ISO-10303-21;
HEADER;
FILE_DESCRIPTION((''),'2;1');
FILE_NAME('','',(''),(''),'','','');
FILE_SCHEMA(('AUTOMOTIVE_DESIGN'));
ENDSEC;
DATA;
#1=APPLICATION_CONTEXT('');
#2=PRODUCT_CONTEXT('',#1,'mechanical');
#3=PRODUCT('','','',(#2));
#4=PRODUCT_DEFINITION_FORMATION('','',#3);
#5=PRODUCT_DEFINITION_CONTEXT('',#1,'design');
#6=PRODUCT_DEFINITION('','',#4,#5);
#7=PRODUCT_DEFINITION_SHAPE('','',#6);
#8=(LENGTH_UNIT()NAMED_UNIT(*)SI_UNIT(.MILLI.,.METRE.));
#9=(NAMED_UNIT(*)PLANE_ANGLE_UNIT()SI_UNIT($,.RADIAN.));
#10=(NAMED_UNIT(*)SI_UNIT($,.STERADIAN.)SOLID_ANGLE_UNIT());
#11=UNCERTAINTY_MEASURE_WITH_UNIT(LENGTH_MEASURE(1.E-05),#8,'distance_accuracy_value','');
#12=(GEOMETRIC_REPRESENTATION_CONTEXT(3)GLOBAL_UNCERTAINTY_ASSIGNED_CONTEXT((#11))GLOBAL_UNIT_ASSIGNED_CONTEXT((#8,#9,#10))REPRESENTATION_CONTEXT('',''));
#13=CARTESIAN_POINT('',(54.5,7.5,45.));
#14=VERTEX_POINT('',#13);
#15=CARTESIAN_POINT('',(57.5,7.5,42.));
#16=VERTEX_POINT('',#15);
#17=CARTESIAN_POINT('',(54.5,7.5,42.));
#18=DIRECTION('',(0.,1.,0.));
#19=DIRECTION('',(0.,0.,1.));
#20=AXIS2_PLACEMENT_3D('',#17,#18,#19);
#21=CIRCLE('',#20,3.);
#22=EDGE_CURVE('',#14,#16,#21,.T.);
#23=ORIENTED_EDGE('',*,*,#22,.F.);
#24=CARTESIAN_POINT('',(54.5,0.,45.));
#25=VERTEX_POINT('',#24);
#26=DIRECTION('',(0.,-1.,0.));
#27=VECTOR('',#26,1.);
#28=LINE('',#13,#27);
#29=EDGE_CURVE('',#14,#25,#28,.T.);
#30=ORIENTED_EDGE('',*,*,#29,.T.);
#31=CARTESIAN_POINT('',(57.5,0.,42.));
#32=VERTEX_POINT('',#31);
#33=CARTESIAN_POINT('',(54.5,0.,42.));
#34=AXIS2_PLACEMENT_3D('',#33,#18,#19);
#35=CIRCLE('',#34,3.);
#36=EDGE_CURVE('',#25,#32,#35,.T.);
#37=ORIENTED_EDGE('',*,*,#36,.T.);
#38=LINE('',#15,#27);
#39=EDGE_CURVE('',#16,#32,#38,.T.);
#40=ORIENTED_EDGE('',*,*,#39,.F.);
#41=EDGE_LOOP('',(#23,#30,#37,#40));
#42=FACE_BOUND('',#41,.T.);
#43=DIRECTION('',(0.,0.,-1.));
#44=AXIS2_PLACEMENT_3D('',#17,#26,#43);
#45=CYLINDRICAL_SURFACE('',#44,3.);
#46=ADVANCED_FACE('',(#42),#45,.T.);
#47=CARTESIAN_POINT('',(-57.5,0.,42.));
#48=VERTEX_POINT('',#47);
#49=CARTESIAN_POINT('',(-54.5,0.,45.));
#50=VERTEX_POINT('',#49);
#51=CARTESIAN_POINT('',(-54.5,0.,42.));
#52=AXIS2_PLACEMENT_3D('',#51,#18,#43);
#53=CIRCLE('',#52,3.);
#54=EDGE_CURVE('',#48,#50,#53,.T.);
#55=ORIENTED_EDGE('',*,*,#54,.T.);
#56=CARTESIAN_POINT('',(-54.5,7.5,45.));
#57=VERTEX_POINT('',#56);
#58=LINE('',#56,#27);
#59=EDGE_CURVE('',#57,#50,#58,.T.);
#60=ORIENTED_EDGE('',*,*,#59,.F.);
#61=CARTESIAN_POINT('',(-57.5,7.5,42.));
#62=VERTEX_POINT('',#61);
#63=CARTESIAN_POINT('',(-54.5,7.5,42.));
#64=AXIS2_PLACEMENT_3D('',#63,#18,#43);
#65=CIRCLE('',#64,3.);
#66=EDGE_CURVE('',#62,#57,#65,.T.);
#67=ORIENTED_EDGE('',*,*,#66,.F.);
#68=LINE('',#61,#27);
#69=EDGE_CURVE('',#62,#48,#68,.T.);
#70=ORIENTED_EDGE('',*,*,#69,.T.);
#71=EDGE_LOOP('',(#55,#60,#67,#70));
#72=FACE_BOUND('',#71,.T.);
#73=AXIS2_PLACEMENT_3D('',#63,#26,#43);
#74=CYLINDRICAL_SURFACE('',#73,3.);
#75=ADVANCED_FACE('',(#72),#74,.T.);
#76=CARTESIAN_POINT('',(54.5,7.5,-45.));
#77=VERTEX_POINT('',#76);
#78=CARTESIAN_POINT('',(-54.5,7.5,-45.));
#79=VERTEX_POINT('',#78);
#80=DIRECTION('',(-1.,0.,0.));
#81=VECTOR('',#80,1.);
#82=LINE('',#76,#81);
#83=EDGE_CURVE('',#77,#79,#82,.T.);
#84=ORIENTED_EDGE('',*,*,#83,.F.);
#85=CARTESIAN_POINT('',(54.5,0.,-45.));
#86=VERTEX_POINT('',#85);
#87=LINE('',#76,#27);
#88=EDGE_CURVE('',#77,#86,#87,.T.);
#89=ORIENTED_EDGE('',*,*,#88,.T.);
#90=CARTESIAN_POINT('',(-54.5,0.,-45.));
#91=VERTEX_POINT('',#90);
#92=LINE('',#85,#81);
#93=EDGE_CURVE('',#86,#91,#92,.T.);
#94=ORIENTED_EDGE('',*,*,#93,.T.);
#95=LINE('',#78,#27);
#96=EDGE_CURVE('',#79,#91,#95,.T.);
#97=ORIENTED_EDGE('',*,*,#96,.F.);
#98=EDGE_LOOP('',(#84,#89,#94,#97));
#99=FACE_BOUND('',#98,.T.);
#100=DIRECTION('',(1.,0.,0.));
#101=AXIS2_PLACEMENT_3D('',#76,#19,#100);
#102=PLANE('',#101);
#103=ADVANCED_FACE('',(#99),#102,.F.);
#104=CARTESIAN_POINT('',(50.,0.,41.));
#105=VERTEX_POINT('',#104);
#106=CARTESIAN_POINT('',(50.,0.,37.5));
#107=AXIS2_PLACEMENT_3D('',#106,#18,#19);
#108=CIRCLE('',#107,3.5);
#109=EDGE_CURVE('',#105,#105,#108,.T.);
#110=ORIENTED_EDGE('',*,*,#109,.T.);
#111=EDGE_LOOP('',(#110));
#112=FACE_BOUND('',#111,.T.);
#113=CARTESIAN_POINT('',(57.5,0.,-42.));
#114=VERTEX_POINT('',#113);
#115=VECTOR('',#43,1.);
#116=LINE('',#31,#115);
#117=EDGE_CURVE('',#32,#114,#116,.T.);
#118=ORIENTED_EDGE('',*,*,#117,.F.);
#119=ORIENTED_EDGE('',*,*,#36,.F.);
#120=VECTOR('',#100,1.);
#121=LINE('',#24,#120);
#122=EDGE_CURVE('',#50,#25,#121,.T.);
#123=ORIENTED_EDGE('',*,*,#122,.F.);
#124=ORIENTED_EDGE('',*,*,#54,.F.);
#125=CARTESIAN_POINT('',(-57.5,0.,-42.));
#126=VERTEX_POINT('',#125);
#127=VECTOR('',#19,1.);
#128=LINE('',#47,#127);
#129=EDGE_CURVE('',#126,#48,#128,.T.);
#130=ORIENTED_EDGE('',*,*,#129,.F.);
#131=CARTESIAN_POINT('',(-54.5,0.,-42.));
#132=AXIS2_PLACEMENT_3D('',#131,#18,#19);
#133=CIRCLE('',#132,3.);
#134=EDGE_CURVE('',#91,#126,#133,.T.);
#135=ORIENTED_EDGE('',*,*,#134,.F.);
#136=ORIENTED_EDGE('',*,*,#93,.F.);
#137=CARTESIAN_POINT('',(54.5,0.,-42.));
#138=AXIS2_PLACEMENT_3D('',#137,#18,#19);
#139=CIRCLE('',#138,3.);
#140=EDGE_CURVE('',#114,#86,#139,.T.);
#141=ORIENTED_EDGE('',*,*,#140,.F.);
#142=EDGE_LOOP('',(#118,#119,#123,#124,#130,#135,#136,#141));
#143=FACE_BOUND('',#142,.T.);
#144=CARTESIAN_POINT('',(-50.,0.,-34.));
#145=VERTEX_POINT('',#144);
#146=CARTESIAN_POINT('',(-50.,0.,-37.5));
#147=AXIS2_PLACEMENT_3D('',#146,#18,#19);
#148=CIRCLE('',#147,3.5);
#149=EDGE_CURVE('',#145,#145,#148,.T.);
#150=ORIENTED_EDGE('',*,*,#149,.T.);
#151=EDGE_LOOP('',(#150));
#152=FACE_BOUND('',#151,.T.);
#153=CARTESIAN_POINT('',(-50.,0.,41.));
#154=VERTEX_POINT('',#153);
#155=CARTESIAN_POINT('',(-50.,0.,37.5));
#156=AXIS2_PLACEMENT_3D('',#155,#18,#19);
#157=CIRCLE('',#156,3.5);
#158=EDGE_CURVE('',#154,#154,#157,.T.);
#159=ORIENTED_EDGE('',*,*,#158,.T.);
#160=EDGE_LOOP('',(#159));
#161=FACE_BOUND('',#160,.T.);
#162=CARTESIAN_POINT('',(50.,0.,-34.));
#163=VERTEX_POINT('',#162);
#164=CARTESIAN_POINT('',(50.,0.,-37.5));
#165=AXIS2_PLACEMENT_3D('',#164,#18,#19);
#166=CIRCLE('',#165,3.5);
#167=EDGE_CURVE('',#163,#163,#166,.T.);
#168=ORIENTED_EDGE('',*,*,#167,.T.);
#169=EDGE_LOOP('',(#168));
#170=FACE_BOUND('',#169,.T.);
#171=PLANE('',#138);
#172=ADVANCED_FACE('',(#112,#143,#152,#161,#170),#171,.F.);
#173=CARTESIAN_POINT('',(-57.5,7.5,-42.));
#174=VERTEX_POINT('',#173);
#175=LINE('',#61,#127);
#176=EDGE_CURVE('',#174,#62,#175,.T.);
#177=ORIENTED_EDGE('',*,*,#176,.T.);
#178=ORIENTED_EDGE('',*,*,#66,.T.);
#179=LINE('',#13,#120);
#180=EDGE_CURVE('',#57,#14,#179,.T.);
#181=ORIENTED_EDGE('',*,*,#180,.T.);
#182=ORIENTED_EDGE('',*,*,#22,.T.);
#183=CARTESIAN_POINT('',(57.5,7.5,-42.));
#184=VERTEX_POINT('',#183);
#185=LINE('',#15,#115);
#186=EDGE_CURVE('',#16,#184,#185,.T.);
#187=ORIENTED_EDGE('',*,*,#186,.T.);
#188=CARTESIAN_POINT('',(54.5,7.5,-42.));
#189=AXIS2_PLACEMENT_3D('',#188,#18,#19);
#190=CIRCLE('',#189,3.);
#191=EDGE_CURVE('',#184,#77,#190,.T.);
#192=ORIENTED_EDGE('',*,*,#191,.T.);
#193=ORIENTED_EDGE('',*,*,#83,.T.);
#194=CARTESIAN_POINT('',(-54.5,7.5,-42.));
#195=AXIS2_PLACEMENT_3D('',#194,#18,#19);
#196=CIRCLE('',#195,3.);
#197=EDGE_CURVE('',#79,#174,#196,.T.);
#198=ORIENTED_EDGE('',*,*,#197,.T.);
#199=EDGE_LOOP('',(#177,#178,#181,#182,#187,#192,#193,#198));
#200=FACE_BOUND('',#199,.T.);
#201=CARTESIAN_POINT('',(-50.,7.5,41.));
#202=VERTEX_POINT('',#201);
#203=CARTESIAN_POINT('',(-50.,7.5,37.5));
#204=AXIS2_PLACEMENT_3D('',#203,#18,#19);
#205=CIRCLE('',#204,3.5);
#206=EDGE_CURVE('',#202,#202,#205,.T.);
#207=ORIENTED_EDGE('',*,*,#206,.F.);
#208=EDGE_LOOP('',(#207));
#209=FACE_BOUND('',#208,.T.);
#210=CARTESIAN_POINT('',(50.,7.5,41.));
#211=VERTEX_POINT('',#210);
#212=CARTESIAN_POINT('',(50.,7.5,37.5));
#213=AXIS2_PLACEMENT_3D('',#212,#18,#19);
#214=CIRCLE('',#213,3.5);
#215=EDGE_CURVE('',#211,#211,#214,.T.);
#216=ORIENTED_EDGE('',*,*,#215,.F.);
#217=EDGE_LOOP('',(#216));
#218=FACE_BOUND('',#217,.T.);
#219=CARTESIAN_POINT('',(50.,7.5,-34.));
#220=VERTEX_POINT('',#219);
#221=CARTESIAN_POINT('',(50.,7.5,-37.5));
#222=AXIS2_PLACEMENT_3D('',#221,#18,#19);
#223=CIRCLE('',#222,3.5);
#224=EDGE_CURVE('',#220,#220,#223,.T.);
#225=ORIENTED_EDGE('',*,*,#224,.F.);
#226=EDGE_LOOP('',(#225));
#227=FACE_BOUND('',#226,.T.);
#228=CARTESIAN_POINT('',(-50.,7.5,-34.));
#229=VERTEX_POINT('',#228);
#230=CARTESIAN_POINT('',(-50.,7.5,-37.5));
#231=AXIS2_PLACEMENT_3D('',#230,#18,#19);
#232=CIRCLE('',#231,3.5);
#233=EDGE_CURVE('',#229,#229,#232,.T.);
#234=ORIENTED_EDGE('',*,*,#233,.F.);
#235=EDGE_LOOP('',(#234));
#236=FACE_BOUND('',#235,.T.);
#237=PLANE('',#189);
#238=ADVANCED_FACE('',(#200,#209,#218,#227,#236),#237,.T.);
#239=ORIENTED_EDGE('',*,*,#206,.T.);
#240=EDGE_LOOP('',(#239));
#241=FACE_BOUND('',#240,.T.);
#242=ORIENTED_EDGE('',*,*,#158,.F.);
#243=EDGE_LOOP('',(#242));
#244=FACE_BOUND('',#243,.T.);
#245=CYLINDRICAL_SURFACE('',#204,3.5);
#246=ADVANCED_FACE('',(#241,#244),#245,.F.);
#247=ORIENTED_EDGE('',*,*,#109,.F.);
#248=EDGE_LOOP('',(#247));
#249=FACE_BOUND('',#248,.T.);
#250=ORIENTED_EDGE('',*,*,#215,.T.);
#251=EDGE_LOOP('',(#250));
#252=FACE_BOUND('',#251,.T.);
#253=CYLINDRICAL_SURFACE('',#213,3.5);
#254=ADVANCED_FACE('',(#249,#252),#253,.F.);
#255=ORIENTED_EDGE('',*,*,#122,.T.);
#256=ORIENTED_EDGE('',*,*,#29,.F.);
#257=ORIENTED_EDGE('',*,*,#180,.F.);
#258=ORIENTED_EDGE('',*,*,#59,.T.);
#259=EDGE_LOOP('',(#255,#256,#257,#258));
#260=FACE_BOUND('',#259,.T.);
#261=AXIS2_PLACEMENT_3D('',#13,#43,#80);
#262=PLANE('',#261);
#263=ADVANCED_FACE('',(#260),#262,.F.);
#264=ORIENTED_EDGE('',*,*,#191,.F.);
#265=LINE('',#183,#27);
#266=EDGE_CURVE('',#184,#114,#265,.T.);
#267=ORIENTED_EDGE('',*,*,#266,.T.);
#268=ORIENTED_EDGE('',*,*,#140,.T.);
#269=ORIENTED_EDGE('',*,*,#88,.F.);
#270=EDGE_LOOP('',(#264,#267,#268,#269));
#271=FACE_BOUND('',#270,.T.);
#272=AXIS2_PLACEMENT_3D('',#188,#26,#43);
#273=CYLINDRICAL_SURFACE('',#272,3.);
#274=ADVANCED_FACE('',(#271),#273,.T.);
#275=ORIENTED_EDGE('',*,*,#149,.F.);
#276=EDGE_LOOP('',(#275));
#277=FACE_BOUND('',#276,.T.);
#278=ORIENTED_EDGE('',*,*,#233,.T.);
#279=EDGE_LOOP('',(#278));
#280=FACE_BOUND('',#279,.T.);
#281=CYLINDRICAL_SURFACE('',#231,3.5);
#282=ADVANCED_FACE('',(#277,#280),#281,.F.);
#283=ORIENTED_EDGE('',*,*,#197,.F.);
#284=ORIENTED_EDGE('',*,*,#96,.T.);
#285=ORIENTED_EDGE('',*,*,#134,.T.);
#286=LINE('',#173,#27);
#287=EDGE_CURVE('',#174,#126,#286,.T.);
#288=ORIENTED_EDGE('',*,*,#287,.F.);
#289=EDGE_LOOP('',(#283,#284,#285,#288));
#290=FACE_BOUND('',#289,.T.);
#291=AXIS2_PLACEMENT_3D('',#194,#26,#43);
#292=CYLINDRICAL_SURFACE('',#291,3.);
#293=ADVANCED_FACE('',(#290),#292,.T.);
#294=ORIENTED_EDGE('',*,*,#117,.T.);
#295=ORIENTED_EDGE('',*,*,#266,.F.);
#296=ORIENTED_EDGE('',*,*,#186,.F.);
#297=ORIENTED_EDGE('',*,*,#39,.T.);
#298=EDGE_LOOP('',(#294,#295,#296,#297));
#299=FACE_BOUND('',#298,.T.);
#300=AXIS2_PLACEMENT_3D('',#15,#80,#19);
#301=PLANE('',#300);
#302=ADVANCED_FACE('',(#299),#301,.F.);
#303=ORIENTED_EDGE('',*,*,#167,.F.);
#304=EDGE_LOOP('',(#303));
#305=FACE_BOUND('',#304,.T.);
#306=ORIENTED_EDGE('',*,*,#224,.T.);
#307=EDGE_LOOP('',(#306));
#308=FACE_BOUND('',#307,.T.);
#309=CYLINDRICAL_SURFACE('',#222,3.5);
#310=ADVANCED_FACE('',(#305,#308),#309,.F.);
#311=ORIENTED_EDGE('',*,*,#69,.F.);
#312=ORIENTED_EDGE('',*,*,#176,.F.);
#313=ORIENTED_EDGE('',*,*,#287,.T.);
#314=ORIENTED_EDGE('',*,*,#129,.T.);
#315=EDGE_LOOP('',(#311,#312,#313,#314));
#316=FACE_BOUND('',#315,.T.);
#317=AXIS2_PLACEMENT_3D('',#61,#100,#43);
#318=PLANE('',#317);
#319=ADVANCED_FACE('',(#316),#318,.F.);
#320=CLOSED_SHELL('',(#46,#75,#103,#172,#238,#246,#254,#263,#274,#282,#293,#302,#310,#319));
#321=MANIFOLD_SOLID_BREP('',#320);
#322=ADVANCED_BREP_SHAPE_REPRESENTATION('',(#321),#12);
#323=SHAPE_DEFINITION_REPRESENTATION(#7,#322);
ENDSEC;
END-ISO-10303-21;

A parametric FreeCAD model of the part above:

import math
import FreeCAD as App
import Part
import Sketcher

V = App.Vector

doc = App.newDocument("Part")
params = doc.addObject("Spreadsheet::Sheet", "Params")
for row, (alias, value) in enumerate([
    ("sketch1_radius", "3 mm"),
    ("sketch1_width", "109 mm"),
    ("sketch1_height", "84 mm"),
    ("pad1_length", "7.5 mm"),
    ("sketch2_diameter", "7 mm"),
    ("hole_diameter", "7 mm"),
], start=1):
    params.set(f"A{row}", alias)
    params.set(f"B{row}", "=" + value)
    params.setAlias(f"B{row}", alias)

body = doc.addObject("PartDesign::Body", "Body")

sketch1 = body.newObject("Sketcher::SketchObject", "Sketch")
sketch1.AttachmentSupport = (doc.getObject("XZ_Plane"), [""])
sketch1.MapMode = "FlatFace"
sketch1.addGeometry([
    Part.LineSegment(V(-54.5, 45, 0), V(54.5, 45, 0)),
    Part.ArcOfCircle(Part.Circle(V(54.5, 42, 0), V(0, 0, 1), 3), math.radians(0), math.radians(90)),
    Part.LineSegment(V(57.5, 42, 0), V(57.5, -42, 0)),
    Part.ArcOfCircle(Part.Circle(V(54.5, -42, 0), V(0, 0, 1), 3), math.radians(-90), math.radians(0)),
    Part.LineSegment(V(54.5, -45, 0), V(-54.5, -45, 0)),
    Part.ArcOfCircle(Part.Circle(V(-54.5, -42, 0), V(0, 0, 1), 3), math.radians(180), math.radians(270)),
    Part.LineSegment(V(-57.5, -42, 0), V(-57.5, 42, 0)),
    Part.ArcOfCircle(Part.Circle(V(-54.5, 42, 0), V(0, 0, 1), 3), math.radians(90), math.radians(180)),
], False)
sketch1.addConstraint([
    Sketcher.Constraint("Tangent", 0, 2, 1, 2),
    Sketcher.Constraint("Tangent", 1, 1, 2, 1),
    Sketcher.Constraint("Tangent", 2, 2, 3, 2),
    Sketcher.Constraint("Tangent", 3, 1, 4, 1),
    Sketcher.Constraint("Tangent", 4, 2, 5, 2),
    Sketcher.Constraint("Tangent", 5, 1, 6, 1),
    Sketcher.Constraint("Tangent", 6, 2, 7, 2),
    Sketcher.Constraint("Tangent", 7, 1, 0, 1),
    Sketcher.Constraint("Horizontal", 0),
    Sketcher.Constraint("Vertical", 2),
    Sketcher.Constraint("Horizontal", 4),
    Sketcher.Constraint("Vertical", 6),
    Sketcher.Constraint("Equal", 1, 3),
    Sketcher.Constraint("Equal", 3, 5),
    Sketcher.Constraint("Equal", 5, 7),
    Sketcher.Constraint("Symmetric", 1, 3, 5, 3, -1, 1),
    Sketcher.Constraint("Radius", 1, 3.0),
    Sketcher.Constraint("DistanceX", 0, 1, 0, 2, 109.0),
    Sketcher.Constraint("DistanceY", 2, 2, 2, 1, 84.0),
])
sketch1.setExpression("Constraints[16]", "Params.sketch1_radius")
sketch1.setExpression("Constraints[17]", "Params.sketch1_width")
sketch1.setExpression("Constraints[18]", "Params.sketch1_height")
pad1 = body.newObject("PartDesign::Pad", "Pad")
pad1.Profile = sketch1
pad1.setExpression("Length", "Params.pad1_length")
pad1.Reversed = True

sketch2 = body.newObject("Sketcher::SketchObject", "Sketch001")
sketch2.AttachmentSupport = (doc.getObject("XZ_Plane"), [""])
sketch2.MapMode = "FlatFace"
sketch2.AttachmentOffset = App.Placement(V(0, 0, -7.5), App.Rotation())
sketch2.addGeometry([
    Part.Circle(V(-50, -37.5, 0), V(0, 0, 1), 3.5),
    Part.Circle(V(50, -37.5, 0), V(0, 0, 1), 3.5),
    Part.Circle(V(50, 37.5, 0), V(0, 0, 1), 3.5),
    Part.Circle(V(-50, 37.5, 0), V(0, 0, 1), 3.5),
], False)
sketch2.addConstraint([
    Sketcher.Constraint("Equal", 0, 1),
    Sketcher.Constraint("Equal", 1, 2),
    Sketcher.Constraint("Equal", 2, 3),
    Sketcher.Constraint("Symmetric", 0, 3, 2, 3, -1, 1),
    Sketcher.Constraint("Symmetric", 1, 3, 3, 3, -1, 1),
    Sketcher.Constraint("Symmetric", 0, 3, 1, 3, -2),
    Sketcher.Constraint("Diameter", 0, 7.0),
    Sketcher.Constraint("DistanceX", 0, 3, -1, 1, 50.0),
    Sketcher.Constraint("DistanceY", 1, 3, 2, 3, 75.0),
])
sketch2.setExpression("Constraints[6]", "Params.sketch2_diameter")
doc.recompute()
hole = body.newObject("PartDesign::Hole", "Hole")
hole.Profile = sketch2
hole.ThreadType = "None"
hole.setExpression("Diameter", "Params.hole_diameter")
hole.DepthType = "ThroughAll"
hole.Reversed = True

doc.recompute()
